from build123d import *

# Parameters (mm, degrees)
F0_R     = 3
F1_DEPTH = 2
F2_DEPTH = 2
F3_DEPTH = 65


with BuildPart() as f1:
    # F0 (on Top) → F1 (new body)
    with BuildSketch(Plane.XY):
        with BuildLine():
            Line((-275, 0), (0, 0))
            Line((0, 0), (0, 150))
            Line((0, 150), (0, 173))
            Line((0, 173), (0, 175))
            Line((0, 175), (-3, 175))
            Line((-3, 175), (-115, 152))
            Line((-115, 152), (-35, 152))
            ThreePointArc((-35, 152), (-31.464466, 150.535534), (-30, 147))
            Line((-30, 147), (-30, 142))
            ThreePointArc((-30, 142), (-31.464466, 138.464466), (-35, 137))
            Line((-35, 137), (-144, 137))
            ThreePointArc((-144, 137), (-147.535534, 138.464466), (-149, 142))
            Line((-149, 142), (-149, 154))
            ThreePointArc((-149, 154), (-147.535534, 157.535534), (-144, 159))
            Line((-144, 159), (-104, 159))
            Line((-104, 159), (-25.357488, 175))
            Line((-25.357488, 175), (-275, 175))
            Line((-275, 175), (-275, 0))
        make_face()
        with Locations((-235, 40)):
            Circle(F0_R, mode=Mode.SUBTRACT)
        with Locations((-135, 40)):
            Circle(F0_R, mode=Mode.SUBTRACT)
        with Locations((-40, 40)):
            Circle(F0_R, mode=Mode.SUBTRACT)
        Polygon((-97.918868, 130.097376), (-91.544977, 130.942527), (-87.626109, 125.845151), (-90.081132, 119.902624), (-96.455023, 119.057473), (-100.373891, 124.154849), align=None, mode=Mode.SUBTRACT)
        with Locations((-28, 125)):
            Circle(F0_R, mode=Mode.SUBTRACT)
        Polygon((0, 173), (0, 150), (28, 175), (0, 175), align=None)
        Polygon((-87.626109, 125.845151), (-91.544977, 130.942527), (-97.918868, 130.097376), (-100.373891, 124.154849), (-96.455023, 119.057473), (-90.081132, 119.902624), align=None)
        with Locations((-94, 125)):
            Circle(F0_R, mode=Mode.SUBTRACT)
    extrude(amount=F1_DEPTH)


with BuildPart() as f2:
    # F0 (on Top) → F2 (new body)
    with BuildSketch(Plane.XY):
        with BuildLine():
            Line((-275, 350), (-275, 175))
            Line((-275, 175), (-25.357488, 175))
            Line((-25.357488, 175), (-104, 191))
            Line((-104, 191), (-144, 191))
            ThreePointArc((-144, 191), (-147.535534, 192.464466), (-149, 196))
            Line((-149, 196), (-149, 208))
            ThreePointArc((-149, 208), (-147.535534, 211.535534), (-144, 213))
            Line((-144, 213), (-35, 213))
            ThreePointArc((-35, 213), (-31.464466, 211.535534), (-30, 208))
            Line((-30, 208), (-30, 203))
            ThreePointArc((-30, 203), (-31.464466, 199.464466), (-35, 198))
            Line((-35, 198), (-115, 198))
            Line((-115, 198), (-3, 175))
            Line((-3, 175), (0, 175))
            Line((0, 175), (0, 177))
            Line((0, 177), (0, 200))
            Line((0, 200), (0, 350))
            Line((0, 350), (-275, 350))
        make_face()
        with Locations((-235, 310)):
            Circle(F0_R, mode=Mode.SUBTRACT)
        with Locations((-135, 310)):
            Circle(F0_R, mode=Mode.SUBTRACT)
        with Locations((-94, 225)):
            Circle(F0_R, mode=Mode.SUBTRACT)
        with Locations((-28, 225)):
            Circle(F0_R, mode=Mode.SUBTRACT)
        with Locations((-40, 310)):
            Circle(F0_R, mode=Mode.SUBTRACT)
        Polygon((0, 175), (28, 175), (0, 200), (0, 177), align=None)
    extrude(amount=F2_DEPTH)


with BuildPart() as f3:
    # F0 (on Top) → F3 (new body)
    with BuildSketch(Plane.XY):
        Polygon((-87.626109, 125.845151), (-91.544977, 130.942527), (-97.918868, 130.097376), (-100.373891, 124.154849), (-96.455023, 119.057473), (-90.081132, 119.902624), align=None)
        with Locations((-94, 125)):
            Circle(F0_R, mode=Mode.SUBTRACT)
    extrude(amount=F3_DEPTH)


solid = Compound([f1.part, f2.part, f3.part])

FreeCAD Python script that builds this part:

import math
import FreeCAD as App
import Part
import Sketcher
Q = App.Units.Quantity


def add_polygon(sketch, points):
    """Adds a closed chain of lines whose ends are joined by coincident constraints."""
    first, n = sketch.GeometryCount, len(points)
    for a, b in zip(points, points[1:] + points[:1]):
        sketch.addGeometry(Part.LineSegment(App.Vector(*a, 0), App.Vector(*b, 0)), False)
    for i in range(n):
        sketch.addConstraint(Sketcher.Constraint("Coincident", first + i, 2, first + (i + 1) % n, 1))

doc = App.newDocument("Part")
body = doc.addObject("PartDesign::Body", "Body")

# Sketch on XY plane
sketch1 = body.newObject("Sketcher::SketchObject", "Sketch")
sketch1.AttachmentSupport = (doc.getObject("XY_Plane"), [""])
sketch1.MapMode = "FlatFace"
sketch1.addGeometry([
    Part.LineSegment(App.Vector(-275, 0, 0), App.Vector(0, 0, 0)),  # 0
    Part.LineSegment(App.Vector(0, 0, 0), App.Vector(0, 150, 0)),  # 1
    Part.LineSegment(App.Vector(0, 150, 0), App.Vector(28, 175, 0)),  # 2
    Part.LineSegment(App.Vector(28, 175, 0), App.Vector(-3, 175, 0)),  # 3
    Part.LineSegment(App.Vector(-3, 175, 0), App.Vector(-115, 152, 0)),  # 4
    Part.LineSegment(App.Vector(-115, 152, 0), App.Vector(-35, 152, 0)),  # 5
    Part.ArcOfCircle(Part.Circle(App.Vector(-35, 147, 0), App.Vector(0, 0, 1), 5), math.radians(0), math.radians(90)),  # 6
    Part.LineSegment(App.Vector(-30, 147, 0), App.Vector(-30, 142, 0)),  # 7
    Part.ArcOfCircle(Part.Circle(App.Vector(-35, 142, 0), App.Vector(0, 0, 1), 5), math.radians(-90), math.radians(0)),  # 8
    Part.LineSegment(App.Vector(-35, 137, 0), App.Vector(-144, 137, 0)),  # 9
    Part.ArcOfCircle(Part.Circle(App.Vector(-144, 142, 0), App.Vector(0, 0, 1), 5), math.radians(180), math.radians(270)),  # 10
    Part.LineSegment(App.Vector(-149, 142, 0), App.Vector(-149, 154, 0)),  # 11
    Part.ArcOfCircle(Part.Circle(App.Vector(-144, 154, 0), App.Vector(0, 0, 1), 5), math.radians(90), math.radians(180)),  # 12
    Part.LineSegment(App.Vector(-144, 159, 0), App.Vector(-104, 159, 0)),  # 13
    Part.LineSegment(App.Vector(-104, 159, 0), App.Vector(-25.4, 175, 0)),  # 14
    Part.LineSegment(App.Vector(-25.4, 175, 0), App.Vector(-275, 175, 0)),  # 15
    Part.LineSegment(App.Vector(-275, 175, 0), App.Vector(-275, 0, 0)),  # 16
    Part.Circle(App.Vector(-235, 40, 0), App.Vector(0, 0, 1), 3),  # 17
    Part.Circle(App.Vector(-135, 40, 0), App.Vector(0, 0, 1), 3),  # 18
    Part.Circle(App.Vector(-40, 40, 0), App.Vector(0, 0, 1), 3),  # 19
    Part.Circle(App.Vector(-94, 125, 0), App.Vector(0, 0, 1), 3),  # 20
    Part.Circle(App.Vector(-28, 125, 0), App.Vector(0, 0, 1), 3),  # 21
], False)
sketch1.addConstraint([
    Sketcher.Constraint("Coincident", 0, 2, 1, 1),
    Sketcher.Constraint("Coincident", 1, 2, 2, 1),
    Sketcher.Constraint("Coincident", 2, 2, 3, 1),
    Sketcher.Constraint("Coincident", 3, 2, 4, 1),
    Sketcher.Constraint("Coincident", 4, 2, 5, 1),
    Sketcher.Constraint("Tangent", 5, 2, 6, 2),
    Sketcher.Constraint("Tangent", 6, 1, 7, 1),
    Sketcher.Constraint("Tangent", 7, 2, 8, 2),
    Sketcher.Constraint("Tangent", 8, 1, 9, 1),
    Sketcher.Constraint("Tangent", 9, 2, 10, 2),
    Sketcher.Constraint("Tangent", 10, 1, 11, 1),
    Sketcher.Constraint("Tangent", 11, 2, 12, 2),
    Sketcher.Constraint("Tangent", 12, 1, 13, 1),
    Sketcher.Constraint("Coincident", 13, 2, 14, 1),
    Sketcher.Constraint("Coincident", 14, 2, 15, 1),
    Sketcher.Constraint("Coincident", 15, 2, 16, 1),
    Sketcher.Constraint("Coincident", 16, 2, 0, 1),
    Sketcher.Constraint("Horizontal", 0),
    Sketcher.Constraint("Vertical", 1),
    Sketcher.Constraint("Horizontal", 3),
    Sketcher.Constraint("Horizontal", 5),
    Sketcher.Constraint("Vertical", 7),
    Sketcher.Constraint("Horizontal", 9),
    Sketcher.Constraint("Vertical", 11),
    Sketcher.Constraint("Horizontal", 13),
    Sketcher.Constraint("Horizontal", 15),
    Sketcher.Constraint("Vertical", 16),
    Sketcher.Constraint("Coincident", 0, 2, -1, 1),
    Sketcher.Constraint("Equal", 6, 8),
    Sketcher.Constraint("Equal", 8, 10),
    Sketcher.Constraint("Equal", 10, 12),
    Sketcher.Constraint("Equal", 17, 18),
    Sketcher.Constraint("Equal", 18, 19),
    Sketcher.Constraint("Equal", 19, 20),
    Sketcher.Constraint("Equal", 20, 21),
    Sketcher.Constraint("Horizontal", 17, 3, 18, 3),
    Sketcher.Constraint("Horizontal", 18, 3, 19, 3),
    Sketcher.Constraint("Horizontal", 20, 3, 21, 3),
    Sketcher.Constraint("Horizontal", 3, 2, 14, 2),
    Sketcher.Constraint("Diameter", 17, 6.0),
    Sketcher.Constraint("Radius", 6, 5.0),
    Sketcher.Constraint("DistanceX", 0, 1, 0, 2, 275.0),
    Sketcher.Constraint("DistanceX", 3, 2, 3, 1, 31.0),
    Sketcher.Constraint("DistanceX", 5, 1, 5, 2, 80.0),
    Sketcher.Constraint("DistanceX", 9, 2, 9, 1, 109.0),
    Sketcher.Constraint("DistanceX", 13, 1, 13, 2, 40.0),
    Sketcher.Constraint("DistanceY", 1, 1, 1, 2, 150.0),
    Sketcher.Constraint("DistanceY", 7, 2, 7, 1, 5.0),
    Sketcher.Constraint("DistanceY", 11, 1, 11, 2, 12.0),
    Sketcher.Constraint("DistanceY", 16, 2, 16, 1, 175.0),
    Sketcher.Constraint("DistanceX", 6, 3, -1, 1, 35.0),
    Sketcher.Constraint("DistanceY", -1, 1, 6, 3, 147.0),
    Sketcher.Constraint("DistanceX", 17, 3, -1, 1, 235.0),
    Sketcher.Constraint("DistanceY", -1, 1, 17, 3, 40.0),
    Sketcher.Constraint("DistanceX", 18, 3, -1, 1, 135.0),
    Sketcher.Constraint("DistanceX", 19, 3, -1, 1, 40.0),
    Sketcher.Constraint("DistanceX", 20, 3, -1, 1, 94.0),
    Sketcher.Constraint("DistanceY", -1, 1, 20, 3, 125.0),
    Sketcher.Constraint("DistanceX", 21, 3, -1, 1, 28.0),
    Sketcher.Constraint("DistanceX", -1, 1, 2, 2, 28.0),
    Sketcher.Constraint("Angle", 14, Q("11.5 deg")),
])
pad1 = body.newObject("PartDesign::Pad", "Pad")
pad1.Profile = sketch1
pad1.Length = 2
body2 = doc.addObject("PartDesign::Body", "Body001")

# Sketch on XY plane
sketch2 = body2.newObject("Sketcher::SketchObject", "Sketch001")
sketch2.AttachmentSupport = (doc.getObject("XY_Plane001"), [""])
sketch2.MapMode = "FlatFace"
sketch2.addGeometry([
    Part.LineSegment(App.Vector(-275, 350, 0), App.Vector(-275, 175, 0)),  # 0
    Part.LineSegment(App.Vector(-275, 175, 0), App.Vector(-25.4, 175, 0)),  # 1
    Part.LineSegment(App.Vector(-25.4, 175, 0), App.Vector(-104, 191, 0)),  # 2
    Part.LineSegment(App.Vector(-104, 191, 0), App.Vector(-144, 191, 0)),  # 3
    Part.ArcOfCircle(Part.Circle(App.Vector(-144, 196, 0), App.Vector(0, 0, 1), 5), math.radians(180), math.radians(270)),  # 4
    Part.LineSegment(App.Vector(-149, 196, 0), App.Vector(-149, 208, 0)),  # 5
    Part.ArcOfCircle(Part.Circle(App.Vector(-144, 208, 0), App.Vector(0, 0, 1), 5), math.radians(90), math.radians(180)),  # 6
    Part.LineSegment(App.Vector(-144, 213, 0), App.Vector(-35, 213, 0)),  # 7
    Part.ArcOfCircle(Part.Circle(App.Vector(-35, 208, 0), App.Vector(0, 0, 1), 5), math.radians(0), math.radians(90)),  # 8
    Part.LineSegment(App.Vector(-30, 208, 0), App.Vector(-30, 203, 0)),  # 9
    Part.ArcOfCircle(Part.Circle(App.Vector(-35, 203, 0), App.Vector(0, 0, 1), 5), math.radians(-90), math.radians(0)),  # 10
    Part.LineSegment(App.Vector(-35, 198, 0), App.Vector(-115, 198, 0)),  # 11
    Part.LineSegment(App.Vector(-115, 198, 0), App.Vector(-3, 175, 0)),  # 12
    Part.LineSegment(App.Vector(-3, 175, 0), App.Vector(28, 175, 0)),  # 13
    Part.LineSegment(App.Vector(28, 175, 0), App.Vector(0, 200, 0)),  # 14
    Part.LineSegment(App.Vector(0, 200, 0), App.Vector(0, 350, 0)),  # 15
    Part.LineSegment(App.Vector(0, 350, 0), App.Vector(-275, 350, 0)),  # 16
    Part.Circle(App.Vector(-94, 225, 0), App.Vector(0, 0, 1), 3),  # 17
    Part.Circle(App.Vector(-28, 225, 0), App.Vector(0, 0, 1), 3),  # 18
    Part.Circle(App.Vector(-235, 310, 0), App.Vector(0, 0, 1), 3),  # 19
    Part.Circle(App.Vector(-135, 310, 0), App.Vector(0, 0, 1), 3),  # 20
    Part.Circle(App.Vector(-40, 310, 0), App.Vector(0, 0, 1), 3),  # 21
], False)
sketch2.addConstraint([
    Sketcher.Constraint("Coincident", 0, 2, 1, 1),
    Sketcher.Constraint("Coincident", 1, 2, 2, 1),
    Sketcher.Constraint("Coincident", 2, 2, 3, 1),
    Sketcher.Constraint("Tangent", 3, 2, 4, 2),
    Sketcher.Constraint("Tangent", 4, 1, 5, 1),
    Sketcher.Constraint("Tangent", 5, 2, 6, 2),
    Sketcher.Constraint("Tangent", 6, 1, 7, 1),
    Sketcher.Constraint("Tangent", 7, 2, 8, 2),
    Sketcher.Constraint("Tangent", 8, 1, 9, 1),
    Sketcher.Constraint("Tangent", 9, 2, 10, 2),
    Sketcher.Constraint("Tangent", 10, 1, 11, 1),
    Sketcher.Constraint("Coincident", 11, 2, 12, 1),
    Sketcher.Constraint("Coincident", 12, 2, 13, 1),
    Sketcher.Constraint("Coincident", 13, 2, 14, 1),
    Sketcher.Constraint("Coincident", 14, 2, 15, 1),
    Sketcher.Constraint("Coincident", 15, 2, 16, 1),
    Sketcher.Constraint("Coincident", 16, 2, 0, 1),
    Sketcher.Constraint("Vertical", 0),
    Sketcher.Constraint("Horizontal", 1),
    Sketcher.Constraint("Horizontal", 3),
    Sketcher.Constraint("Vertical", 5),
    Sketcher.Constraint("Horizontal", 7),
    Sketcher.Constraint("Vertical", 9),
    Sketcher.Constraint("Horizontal", 11),
    Sketcher.Constraint("Horizontal", 13),
    Sketcher.Constraint("Vertical", 15),
    Sketcher.Constraint("Horizontal", 16),
    Sketcher.Constraint("Equal", 4, 6),
    Sketcher.Constraint("Equal", 6, 8),
    Sketcher.Constraint("Equal", 8, 10),
    Sketcher.Constraint("Equal", 17, 18),
    Sketcher.Constraint("Equal", 18, 19),
    Sketcher.Constraint("Equal", 19, 20),
    Sketcher.Constraint("Equal", 20, 21),
    Sketcher.Constraint("PointOnObject", 14, 2, -2),
    Sketcher.Constraint("Horizontal", 17, 3, 18, 3),
    Sketcher.Constraint("Horizontal", 19, 3, 20, 3),
    Sketcher.Constraint("Horizontal", 20, 3, 21, 3),
    Sketcher.Constraint("Horizontal", 1, 2, 12, 2),
    Sketcher.Constraint("Diameter", 17, 6.0),
    Sketcher.Constraint("Radius", 4, 5.0),
    Sketcher.Constraint("DistanceX", 3, 2, 3, 1, 40.0),
    Sketcher.Constraint("DistanceX", 7, 1, 7, 2, 109.0),
    Sketcher.Constraint("DistanceX", 11, 2, 11, 1, 80.0),
    Sketcher.Constraint("DistanceX", 13, 1, 13, 2, 31.0),
    Sketcher.Constraint("DistanceX", 16, 2, 16, 1, 275.0),
    Sketcher.Constraint("DistanceY", 0, 2, 0, 1, 175.0),
    Sketcher.Constraint("DistanceY", 5, 1, 5, 2, 12.0),
    Sketcher.Constraint("DistanceY", 9, 2, 9, 1, 5.0),
    Sketcher.Constraint("DistanceY", 15, 1, 15, 2, 150.0),
    Sketcher.Constraint("DistanceX", 4, 3, -1, 1, 144.0),
    Sketcher.Constraint("DistanceY", -1, 1, 4, 3, 196.0),
    Sketcher.Constraint("DistanceX", 17, 3, -1, 1, 94.0),
    Sketcher.Constraint("DistanceY", -1, 1, 17, 3, 225.0),
    Sketcher.Constraint("DistanceX", 18, 3, -1, 1, 28.0),
    Sketcher.Constraint("DistanceX", 19, 3, -1, 1, 235.0),
    Sketcher.Constraint("DistanceY", -1, 1, 19, 3, 310.0),
    Sketcher.Constraint("DistanceX", 20, 3, -1, 1, 135.0),
    Sketcher.Constraint("DistanceX", 21, 3, -1, 1, 40.0),
    Sketcher.Constraint("DistanceY", -1, 1, 0, 2, 175.0),
    Sketcher.Constraint("DistanceX", 12, 2, -1, 1, 3.0),
    Sketcher.Constraint("Angle", 2, Q("168.5 deg")),
])
pad2 = body2.newObject("PartDesign::Pad", "Pad001")
pad2.Profile = sketch2
pad2.Length = 2
body3 = doc.addObject("PartDesign::Body", "Body002")

# Sketch on XY plane
sketch3 = body3.newObject("Sketcher::SketchObject", "Sketch002")
sketch3.AttachmentSupport = (doc.getObject("XY_Plane002"), [""])
sketch3.MapMode = "FlatFace"
add_polygon(sketch3, [(-87.6, 125.8), (-91.5, 130.9), (-97.9, 130.1), (-100.4, 124.2), (-96.5, 119.1), (-90.1, 119.9)])  # lines 0-5
sketch3.addGeometry(Part.Circle(App.Vector(-94, 125, 0), App.Vector(0, 0, 1), 3), False)  # 6
sketch3.addConstraint([
    Sketcher.Constraint("Parallel", 0, 3),
    Sketcher.Constraint("Parallel", 1, 4),
    Sketcher.Constraint("Parallel", 2, 5),
    Sketcher.Constraint("Equal", 0, 1),
    Sketcher.Constraint("Equal", 1, 2),
    Sketcher.Constraint("Equal", 2, 3),
    Sketcher.Constraint("Diameter", 6, 6.0),
    Sketcher.Constraint("DistanceX", 6, 3, -1, 1, 94.0),
    Sketcher.Constraint("DistanceY", -1, 1, 6, 3, 125.0),
    Sketcher.Constraint("Distance", 0, 6.429679),
    Sketcher.Constraint("DistanceX", 1, 2, -1, 1, 97.918868),
    Sketcher.Constraint("DistanceX", 2, 2, -1, 1, 100.373891),
    Sketcher.Constraint("DistanceY", -1, 1, 2, 2, 124.154849),
    Sketcher.Constraint("DistanceX", 4, 2, -1, 1, 90.081132),
    Sketcher.Constraint("DistanceY", -1, 1, 5, 2, 125.845151),
])
pad3 = body3.newObject("PartDesign::Pad", "Pad002")
pad3.Profile = sketch3
pad3.Length = 65

doc.recompute()
